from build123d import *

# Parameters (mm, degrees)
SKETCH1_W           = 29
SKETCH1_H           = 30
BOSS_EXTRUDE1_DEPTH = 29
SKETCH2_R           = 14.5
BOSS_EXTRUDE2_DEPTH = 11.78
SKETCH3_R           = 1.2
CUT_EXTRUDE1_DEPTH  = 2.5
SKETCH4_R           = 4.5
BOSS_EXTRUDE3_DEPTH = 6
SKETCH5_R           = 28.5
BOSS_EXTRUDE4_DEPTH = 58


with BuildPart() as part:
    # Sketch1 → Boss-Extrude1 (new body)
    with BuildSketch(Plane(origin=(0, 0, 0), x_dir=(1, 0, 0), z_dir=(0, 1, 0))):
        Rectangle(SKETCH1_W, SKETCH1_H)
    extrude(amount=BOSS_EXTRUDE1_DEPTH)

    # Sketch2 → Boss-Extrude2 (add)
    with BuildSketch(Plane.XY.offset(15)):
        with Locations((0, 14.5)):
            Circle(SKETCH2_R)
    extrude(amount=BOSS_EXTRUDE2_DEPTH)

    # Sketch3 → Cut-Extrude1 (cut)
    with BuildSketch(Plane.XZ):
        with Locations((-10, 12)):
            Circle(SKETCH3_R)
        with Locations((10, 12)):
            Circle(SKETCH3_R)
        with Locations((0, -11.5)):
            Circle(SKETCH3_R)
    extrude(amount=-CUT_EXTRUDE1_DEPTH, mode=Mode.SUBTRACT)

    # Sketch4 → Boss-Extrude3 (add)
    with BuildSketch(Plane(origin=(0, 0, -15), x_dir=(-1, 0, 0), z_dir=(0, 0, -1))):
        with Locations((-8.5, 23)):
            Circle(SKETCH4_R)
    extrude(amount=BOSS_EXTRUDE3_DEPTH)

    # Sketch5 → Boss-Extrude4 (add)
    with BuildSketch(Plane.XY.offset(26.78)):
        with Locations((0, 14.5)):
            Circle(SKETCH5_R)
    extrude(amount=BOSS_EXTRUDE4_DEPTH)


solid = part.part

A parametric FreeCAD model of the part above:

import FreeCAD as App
import Part
import Sketcher
from FreeCAD import Vector

doc = App.newDocument("Part")
body = doc.addObject("PartDesign::Body", "Body")

# Sketch on XZ plane
sketch1 = doc.addObject("Sketcher::SketchObject", "Sketch")
body.addObject(sketch1)
sketch1.AttachmentSupport = (doc.XZ_Plane, [""])
sketch1.MapMode = "FlatFace"
sketch1.addGeometry([
    Part.LineSegment(Vector(-14, -15, 0), Vector(-14, 15, 0)),
    Part.LineSegment(Vector(-14, 15, 0), Vector(14, 15, 0)),
    Part.LineSegment(Vector(14, 15, 0), Vector(14, -15, 0)),
    Part.LineSegment(Vector(14, -15, 0), Vector(-14, -15, 0)),
], False)
sketch1.addConstraint([
    Sketcher.Constraint("Coincident", 0, 2, 1, 1),
    Sketcher.Constraint("Coincident", 1, 2, 2, 1),
    Sketcher.Constraint("Coincident", 2, 2, 3, 1),
    Sketcher.Constraint("Coincident", 3, 2, 0, 1),
    Sketcher.Constraint("Vertical", 0),
    Sketcher.Constraint("Horizontal", 1),
    Sketcher.Constraint("Vertical", 2),
    Sketcher.Constraint("Horizontal", 3),
    Sketcher.Constraint("Symmetric", 0, 2, 2, 2, -1, 1),
    Sketcher.Constraint("DistanceX", 1, 1, 1, 2, 29.0),
    Sketcher.Constraint("DistanceY", 0, 1, 0, 2, 30.0),
])
pad1 = doc.addObject("PartDesign::Pad", "Pad")
body.addObject(pad1)
pad1.Profile = sketch1
pad1.Length = 29
pad1.Reversed = True

# Sketch on XY plane
sketch2 = doc.addObject("Sketcher::SketchObject", "Sketch001")
body.addObject(sketch2)
sketch2.AttachmentSupport = (doc.XY_Plane, [""])
sketch2.MapMode = "FlatFace"
sketch2.AttachmentOffset = App.Placement(Vector(0, 0, 15), App.Rotation())
sketch2.addGeometry(Part.Circle(Vector(0, 14, 0), Vector(0, 0, 1), 14), False)
sketch2.addConstraint([
    Sketcher.Constraint("PointOnObject", 0, 3, -2),
    Sketcher.Constraint("Diameter", 0, 29.0),
    Sketcher.Constraint("DistanceY", -1, 1, 0, 3, 14.5),
])
pad2 = doc.addObject("PartDesign::Pad", "Pad001")
body.addObject(pad2)
pad2.Profile = sketch2
pad2.Length = 11.78

# Sketch on XZ plane
sketch3 = doc.addObject("Sketcher::SketchObject", "Sketch002")
body.addObject(sketch3)
sketch3.AttachmentSupport = (doc.XZ_Plane, [""])
sketch3.MapMode = "FlatFace"
sketch3.addGeometry([
    Part.Circle(Vector(-10, 12, 0), Vector(0, 0, 1), 1.2),
    Part.Circle(Vector(10, 12, 0), Vector(0, 0, 1), 1.2),
    Part.Circle(Vector(0, -11.5, 0), Vector(0, 0, 1), 1.2),
], False)
sketch3.addConstraint([
    Sketcher.Constraint("Equal", 0, 1),
    Sketcher.Constraint("Equal", 1, 2),
    Sketcher.Constraint("Symmetric", 0, 3, 1, 3, -2),
    Sketcher.Constraint("PointOnObject", 2, 3, -2),
    Sketcher.Constraint("Diameter", 0, 2.4),
    Sketcher.Constraint("DistanceX", 0, 3, -1, 1, 10.0),
    Sketcher.Constraint("DistanceY", -1, 1, 0, 3, 12.0),
    Sketcher.Constraint("DistanceY", 2, 3, -1, 1, 11.5),
])
pocket1 = doc.addObject("PartDesign::Pocket", "Pocket")
body.addObject(pocket1)
pocket1.Profile = sketch3
pocket1.Length = 2.5

# Sketch on XY plane
sketch4 = doc.addObject("Sketcher::SketchObject", "Sketch003")
body.addObject(sketch4)
sketch4.AttachmentSupport = (doc.XY_Plane, [""])
sketch4.MapMode = "FlatFace"
sketch4.AttachmentOffset = App.Placement(Vector(0, 0, -15), App.Rotation())
sketch4.addGeometry(Part.Circle(Vector(8.5, 23, 0), Vector(0, 0, 1), 4.5), False)
sketch4.addConstraint([
    Sketcher.Constraint("Diameter", 0, 9.0),
    Sketcher.Constraint("DistanceY", -1, 1, 0, 3, 23.0),
    Sketcher.Constraint("DistanceX", -1, 1, 0, 3, 8.5),
])
pad3 = doc.addObject("PartDesign::Pad", "Pad002")
body.addObject(pad3)
pad3.Profile = sketch4
pad3.Length = 6
pad3.Reversed = True

# Sketch on XY plane
sketch5 = doc.addObject("Sketcher::SketchObject", "Sketch004")
body.addObject(sketch5)
sketch5.AttachmentSupport = (doc.XY_Plane, [""])
sketch5.MapMode = "FlatFace"
sketch5.AttachmentOffset = App.Placement(Vector(0, 0, 26.78), App.Rotation())
sketch5.addGeometry(Part.Circle(Vector(0, 14, 0), Vector(0, 0, 1), 28), False)
sketch5.addConstraint([
    Sketcher.Constraint("PointOnObject", 0, 3, -2),
    Sketcher.Constraint("Diameter", 0, 57.0),
    Sketcher.Constraint("DistanceY", -1, 1, 0, 3, 14.5),
])
pad4 = doc.addObject("PartDesign::Pad", "Pad003")
body.addObject(pad4)
pad4.Profile = sketch5
pad4.Length = 58

doc.recompute()
